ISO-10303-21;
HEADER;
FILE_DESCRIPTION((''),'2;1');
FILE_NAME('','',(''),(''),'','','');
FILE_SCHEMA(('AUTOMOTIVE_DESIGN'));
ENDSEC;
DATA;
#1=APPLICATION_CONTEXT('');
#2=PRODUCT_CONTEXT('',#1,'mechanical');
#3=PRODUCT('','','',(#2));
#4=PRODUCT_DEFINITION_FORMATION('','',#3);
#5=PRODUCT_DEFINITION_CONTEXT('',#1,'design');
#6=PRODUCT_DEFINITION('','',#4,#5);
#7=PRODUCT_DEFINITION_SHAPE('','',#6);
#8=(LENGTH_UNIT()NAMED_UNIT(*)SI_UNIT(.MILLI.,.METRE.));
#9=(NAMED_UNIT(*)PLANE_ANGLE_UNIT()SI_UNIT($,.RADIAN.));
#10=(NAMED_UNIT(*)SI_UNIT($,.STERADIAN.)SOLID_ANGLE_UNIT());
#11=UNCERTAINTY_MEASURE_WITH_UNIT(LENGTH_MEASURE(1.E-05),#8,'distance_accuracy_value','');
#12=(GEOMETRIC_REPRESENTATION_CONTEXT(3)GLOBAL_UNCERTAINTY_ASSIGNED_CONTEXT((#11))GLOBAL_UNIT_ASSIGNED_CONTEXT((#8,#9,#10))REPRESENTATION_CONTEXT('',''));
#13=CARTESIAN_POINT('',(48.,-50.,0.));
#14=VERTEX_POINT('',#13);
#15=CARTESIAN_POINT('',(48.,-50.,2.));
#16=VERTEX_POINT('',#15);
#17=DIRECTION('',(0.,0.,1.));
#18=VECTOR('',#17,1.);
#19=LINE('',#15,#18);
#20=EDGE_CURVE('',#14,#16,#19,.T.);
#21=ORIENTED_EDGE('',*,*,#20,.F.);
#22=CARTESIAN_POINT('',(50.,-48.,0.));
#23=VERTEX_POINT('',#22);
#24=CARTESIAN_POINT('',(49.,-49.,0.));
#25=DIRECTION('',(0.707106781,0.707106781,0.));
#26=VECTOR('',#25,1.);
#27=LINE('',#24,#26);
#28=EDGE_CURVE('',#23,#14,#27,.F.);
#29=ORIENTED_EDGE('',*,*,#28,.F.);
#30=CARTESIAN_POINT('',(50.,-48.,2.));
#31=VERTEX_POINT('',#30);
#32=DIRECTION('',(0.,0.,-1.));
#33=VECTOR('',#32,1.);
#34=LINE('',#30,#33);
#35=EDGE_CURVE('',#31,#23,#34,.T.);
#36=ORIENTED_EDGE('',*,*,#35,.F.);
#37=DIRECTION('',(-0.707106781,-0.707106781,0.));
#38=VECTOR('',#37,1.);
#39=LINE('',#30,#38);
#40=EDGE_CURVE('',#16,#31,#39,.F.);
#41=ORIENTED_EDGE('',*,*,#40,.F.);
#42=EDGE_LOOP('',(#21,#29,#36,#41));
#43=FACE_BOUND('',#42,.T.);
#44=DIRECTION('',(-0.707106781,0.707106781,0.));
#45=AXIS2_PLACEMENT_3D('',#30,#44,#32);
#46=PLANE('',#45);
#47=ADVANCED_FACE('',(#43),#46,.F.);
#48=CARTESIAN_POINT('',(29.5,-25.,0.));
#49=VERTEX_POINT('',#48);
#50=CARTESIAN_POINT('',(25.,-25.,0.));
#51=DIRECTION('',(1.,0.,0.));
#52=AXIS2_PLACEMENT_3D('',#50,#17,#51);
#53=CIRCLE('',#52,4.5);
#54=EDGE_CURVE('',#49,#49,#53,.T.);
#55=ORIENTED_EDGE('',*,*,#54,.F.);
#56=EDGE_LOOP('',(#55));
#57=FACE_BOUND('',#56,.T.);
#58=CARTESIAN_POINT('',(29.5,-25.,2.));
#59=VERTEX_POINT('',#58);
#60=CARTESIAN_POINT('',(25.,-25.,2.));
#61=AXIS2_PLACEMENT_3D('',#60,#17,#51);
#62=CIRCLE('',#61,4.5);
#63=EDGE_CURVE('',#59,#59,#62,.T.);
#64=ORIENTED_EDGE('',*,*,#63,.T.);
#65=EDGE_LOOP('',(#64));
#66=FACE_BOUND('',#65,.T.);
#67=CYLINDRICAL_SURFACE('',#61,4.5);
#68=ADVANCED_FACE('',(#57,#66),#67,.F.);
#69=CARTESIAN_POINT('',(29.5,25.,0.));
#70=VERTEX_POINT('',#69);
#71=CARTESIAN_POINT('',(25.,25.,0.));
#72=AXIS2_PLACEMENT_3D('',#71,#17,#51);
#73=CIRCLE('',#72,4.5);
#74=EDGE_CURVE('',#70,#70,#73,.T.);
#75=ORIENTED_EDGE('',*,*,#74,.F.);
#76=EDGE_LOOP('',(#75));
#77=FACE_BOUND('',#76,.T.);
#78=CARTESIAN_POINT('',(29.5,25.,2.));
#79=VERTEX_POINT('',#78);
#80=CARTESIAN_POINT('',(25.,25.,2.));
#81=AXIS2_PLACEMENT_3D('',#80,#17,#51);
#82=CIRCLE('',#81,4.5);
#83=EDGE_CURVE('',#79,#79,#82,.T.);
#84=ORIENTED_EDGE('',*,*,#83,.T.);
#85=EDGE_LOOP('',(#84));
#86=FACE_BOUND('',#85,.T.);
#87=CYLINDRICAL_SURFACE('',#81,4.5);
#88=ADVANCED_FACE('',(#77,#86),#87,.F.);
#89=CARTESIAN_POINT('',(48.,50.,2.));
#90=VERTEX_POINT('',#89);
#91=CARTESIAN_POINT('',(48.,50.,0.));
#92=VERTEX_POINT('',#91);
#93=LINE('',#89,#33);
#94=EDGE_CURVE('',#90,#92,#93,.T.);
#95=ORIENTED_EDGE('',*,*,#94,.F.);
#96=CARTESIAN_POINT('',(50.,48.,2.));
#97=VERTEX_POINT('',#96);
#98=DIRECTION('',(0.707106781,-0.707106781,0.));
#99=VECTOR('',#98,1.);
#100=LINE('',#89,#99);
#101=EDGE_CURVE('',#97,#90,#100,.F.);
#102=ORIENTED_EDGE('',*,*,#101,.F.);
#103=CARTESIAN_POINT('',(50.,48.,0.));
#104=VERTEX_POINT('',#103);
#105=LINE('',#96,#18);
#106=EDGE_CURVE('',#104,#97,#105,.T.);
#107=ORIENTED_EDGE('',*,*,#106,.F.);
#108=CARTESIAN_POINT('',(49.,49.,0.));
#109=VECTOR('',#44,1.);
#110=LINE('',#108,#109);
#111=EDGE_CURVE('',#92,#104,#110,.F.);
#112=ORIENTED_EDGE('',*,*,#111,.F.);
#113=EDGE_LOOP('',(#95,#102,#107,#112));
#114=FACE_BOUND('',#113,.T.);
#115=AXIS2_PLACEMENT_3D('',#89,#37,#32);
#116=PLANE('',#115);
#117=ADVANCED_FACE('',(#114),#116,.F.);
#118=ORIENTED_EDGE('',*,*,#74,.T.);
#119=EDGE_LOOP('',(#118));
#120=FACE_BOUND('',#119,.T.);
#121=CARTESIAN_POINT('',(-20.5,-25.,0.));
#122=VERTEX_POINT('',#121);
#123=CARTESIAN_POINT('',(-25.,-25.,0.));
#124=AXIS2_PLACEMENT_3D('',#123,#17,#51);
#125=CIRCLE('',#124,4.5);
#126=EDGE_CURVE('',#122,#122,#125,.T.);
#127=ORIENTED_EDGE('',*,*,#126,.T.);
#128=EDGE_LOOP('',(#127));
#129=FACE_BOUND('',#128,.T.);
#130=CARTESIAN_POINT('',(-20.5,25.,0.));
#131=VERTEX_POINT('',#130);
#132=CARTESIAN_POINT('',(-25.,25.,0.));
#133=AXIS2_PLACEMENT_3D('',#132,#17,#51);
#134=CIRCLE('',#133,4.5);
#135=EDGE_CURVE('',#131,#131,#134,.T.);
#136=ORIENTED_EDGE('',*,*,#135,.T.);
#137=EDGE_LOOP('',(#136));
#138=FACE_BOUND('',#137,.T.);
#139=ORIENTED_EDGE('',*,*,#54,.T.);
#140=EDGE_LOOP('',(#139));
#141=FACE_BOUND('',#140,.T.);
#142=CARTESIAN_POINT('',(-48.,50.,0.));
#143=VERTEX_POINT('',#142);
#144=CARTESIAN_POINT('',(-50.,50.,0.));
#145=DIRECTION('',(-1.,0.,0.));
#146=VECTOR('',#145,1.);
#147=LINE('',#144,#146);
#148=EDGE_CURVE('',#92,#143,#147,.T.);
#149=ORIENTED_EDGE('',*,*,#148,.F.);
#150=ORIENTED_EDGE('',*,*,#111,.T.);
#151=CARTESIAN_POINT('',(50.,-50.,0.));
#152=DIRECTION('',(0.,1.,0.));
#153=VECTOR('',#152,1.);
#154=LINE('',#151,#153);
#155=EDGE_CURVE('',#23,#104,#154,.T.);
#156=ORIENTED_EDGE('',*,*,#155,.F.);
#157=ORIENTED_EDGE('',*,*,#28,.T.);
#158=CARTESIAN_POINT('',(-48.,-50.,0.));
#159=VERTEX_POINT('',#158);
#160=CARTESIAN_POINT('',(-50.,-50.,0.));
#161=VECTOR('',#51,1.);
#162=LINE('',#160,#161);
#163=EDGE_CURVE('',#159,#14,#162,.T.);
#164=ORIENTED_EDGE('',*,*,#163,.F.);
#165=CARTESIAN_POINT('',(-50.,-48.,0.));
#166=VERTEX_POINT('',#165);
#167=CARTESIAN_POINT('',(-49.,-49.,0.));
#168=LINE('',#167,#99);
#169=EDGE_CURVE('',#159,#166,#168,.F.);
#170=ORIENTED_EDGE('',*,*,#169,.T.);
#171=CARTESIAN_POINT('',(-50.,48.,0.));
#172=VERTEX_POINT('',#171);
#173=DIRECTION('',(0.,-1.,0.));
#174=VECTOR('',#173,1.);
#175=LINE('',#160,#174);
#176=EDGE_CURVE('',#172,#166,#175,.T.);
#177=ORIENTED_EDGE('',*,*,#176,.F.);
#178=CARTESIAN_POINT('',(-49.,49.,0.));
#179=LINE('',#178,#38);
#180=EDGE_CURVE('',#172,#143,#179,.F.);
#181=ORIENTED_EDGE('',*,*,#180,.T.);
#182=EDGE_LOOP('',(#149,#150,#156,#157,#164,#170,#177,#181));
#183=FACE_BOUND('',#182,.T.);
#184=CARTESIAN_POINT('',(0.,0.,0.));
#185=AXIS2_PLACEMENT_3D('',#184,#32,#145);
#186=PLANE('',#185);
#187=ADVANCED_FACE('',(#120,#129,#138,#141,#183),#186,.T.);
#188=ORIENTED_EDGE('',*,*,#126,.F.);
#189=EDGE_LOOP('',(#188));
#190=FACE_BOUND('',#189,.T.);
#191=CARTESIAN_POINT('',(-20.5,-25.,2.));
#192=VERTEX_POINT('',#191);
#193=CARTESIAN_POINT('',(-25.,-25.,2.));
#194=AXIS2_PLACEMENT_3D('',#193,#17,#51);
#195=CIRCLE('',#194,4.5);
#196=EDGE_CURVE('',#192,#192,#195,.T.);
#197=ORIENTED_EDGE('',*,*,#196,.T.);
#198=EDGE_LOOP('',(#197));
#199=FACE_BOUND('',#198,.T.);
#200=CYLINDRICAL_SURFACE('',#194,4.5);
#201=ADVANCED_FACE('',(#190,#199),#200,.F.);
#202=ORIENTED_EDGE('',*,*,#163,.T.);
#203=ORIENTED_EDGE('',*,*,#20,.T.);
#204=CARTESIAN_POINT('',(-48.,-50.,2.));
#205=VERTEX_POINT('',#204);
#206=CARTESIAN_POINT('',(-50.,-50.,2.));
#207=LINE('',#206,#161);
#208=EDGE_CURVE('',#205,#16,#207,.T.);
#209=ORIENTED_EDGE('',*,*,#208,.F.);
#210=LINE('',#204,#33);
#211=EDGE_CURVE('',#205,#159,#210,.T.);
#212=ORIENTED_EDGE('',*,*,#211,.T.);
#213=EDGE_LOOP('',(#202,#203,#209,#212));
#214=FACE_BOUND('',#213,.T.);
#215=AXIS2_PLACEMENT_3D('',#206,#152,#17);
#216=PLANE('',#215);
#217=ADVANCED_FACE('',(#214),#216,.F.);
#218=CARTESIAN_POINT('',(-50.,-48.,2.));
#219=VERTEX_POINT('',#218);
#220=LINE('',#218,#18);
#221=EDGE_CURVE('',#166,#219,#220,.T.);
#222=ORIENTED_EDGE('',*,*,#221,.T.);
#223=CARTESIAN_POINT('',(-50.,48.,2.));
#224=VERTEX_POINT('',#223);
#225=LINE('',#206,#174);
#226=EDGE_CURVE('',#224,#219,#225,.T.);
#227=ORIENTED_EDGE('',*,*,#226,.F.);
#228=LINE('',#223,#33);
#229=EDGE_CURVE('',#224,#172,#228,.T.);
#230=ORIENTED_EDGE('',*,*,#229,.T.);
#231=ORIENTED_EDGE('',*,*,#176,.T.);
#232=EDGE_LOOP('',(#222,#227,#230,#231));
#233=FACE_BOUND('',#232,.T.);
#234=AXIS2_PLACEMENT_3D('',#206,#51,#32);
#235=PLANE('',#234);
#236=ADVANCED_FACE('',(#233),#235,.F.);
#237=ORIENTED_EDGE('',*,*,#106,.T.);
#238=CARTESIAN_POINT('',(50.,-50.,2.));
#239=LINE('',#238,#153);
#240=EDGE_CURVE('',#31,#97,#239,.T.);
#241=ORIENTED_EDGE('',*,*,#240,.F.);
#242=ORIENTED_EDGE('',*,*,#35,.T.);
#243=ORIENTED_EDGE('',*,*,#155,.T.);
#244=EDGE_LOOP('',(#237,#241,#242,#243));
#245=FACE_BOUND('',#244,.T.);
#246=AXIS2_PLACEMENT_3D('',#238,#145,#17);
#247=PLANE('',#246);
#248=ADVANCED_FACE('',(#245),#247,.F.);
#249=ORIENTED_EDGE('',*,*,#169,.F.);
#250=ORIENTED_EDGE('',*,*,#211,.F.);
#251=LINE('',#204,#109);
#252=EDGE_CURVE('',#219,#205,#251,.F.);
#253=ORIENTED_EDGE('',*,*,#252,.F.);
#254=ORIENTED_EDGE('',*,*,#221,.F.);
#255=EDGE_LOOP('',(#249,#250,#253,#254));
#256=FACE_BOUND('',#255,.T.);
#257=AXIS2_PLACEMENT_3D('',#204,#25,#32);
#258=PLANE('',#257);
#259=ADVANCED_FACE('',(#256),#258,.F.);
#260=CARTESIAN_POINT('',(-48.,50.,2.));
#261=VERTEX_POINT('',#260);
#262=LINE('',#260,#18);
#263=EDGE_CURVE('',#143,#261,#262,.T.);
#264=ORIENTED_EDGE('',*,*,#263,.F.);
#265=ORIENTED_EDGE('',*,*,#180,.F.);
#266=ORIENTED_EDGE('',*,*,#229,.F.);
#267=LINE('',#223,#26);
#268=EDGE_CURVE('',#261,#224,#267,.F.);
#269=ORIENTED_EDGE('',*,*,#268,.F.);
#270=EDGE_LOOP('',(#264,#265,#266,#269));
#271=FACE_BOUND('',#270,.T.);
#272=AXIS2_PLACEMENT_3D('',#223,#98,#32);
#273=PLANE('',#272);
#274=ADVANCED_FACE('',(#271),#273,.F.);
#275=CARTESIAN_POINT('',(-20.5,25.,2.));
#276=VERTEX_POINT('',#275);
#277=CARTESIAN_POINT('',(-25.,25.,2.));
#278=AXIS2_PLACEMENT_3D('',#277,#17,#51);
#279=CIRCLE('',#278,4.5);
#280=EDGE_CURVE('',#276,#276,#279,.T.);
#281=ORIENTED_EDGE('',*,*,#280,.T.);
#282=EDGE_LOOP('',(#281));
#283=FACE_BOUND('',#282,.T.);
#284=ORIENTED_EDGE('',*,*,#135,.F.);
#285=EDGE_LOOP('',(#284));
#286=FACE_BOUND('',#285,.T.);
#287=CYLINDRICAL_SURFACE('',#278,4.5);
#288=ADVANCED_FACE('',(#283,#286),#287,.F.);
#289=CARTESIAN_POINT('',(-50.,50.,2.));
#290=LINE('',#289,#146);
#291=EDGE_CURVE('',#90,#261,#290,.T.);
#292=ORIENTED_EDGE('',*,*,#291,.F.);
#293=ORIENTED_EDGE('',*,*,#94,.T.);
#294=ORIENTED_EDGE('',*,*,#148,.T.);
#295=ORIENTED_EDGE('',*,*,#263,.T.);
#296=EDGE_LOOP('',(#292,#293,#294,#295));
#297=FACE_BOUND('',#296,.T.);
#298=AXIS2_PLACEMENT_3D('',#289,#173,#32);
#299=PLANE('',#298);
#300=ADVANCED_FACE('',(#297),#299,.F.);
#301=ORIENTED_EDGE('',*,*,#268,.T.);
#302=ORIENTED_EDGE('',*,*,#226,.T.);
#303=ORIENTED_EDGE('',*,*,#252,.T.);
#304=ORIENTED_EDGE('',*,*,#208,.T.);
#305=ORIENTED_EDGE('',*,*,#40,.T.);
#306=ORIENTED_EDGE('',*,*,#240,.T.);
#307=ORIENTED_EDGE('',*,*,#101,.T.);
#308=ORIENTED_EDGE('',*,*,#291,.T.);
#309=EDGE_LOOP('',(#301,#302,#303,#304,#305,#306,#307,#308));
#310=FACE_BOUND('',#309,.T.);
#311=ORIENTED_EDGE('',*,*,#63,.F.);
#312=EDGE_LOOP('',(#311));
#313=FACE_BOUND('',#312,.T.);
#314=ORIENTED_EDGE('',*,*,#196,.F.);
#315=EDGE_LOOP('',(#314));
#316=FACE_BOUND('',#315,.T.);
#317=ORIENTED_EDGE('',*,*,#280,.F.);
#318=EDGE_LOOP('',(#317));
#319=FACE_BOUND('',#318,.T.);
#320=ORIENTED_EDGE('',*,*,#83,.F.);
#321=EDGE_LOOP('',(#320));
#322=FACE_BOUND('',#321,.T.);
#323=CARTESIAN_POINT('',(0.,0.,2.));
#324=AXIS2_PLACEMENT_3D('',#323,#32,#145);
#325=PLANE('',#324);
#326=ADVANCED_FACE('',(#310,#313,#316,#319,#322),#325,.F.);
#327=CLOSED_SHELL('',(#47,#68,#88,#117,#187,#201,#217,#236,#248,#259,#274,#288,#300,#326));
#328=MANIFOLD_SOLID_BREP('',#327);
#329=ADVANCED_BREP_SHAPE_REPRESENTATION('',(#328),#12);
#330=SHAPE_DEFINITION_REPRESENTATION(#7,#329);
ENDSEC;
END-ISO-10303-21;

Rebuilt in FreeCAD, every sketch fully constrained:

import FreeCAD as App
import Part
import Sketcher

V = App.Vector


def edges_at(feature, points):
    """Names of the edges that pass closest to the given points."""
    edges = feature.Shape.Edges
    near = lambda p: min(range(len(edges)), key=lambda i: edges[i].distToShape(Part.Vertex(*p))[0])
    return sorted({f"Edge{near(p) + 1}" for p in points})


def add_polygon(sketch, points):
    """Adds a closed chain of lines whose ends are joined by coincident constraints."""
    first, n = sketch.GeometryCount, len(points)
    for a, b in zip(points, points[1:] + points[:1]):
        sketch.addGeometry(Part.LineSegment(App.Vector(*a, 0), App.Vector(*b, 0)), False)
    for i in range(n):
        sketch.addConstraint(Sketcher.Constraint("Coincident", first + i, 2, first + (i + 1) % n, 1))

doc = App.newDocument("Part")
body = doc.addObject("PartDesign::Body", "Body")

# Sketch on XY plane
sketch1 = body.newObject("Sketcher::SketchObject", "Sketch")
sketch1.AttachmentSupport = (doc.getObject("XY_Plane"), [""])
sketch1.MapMode = "FlatFace"
add_polygon(sketch1, [(-50, 50), (-50, -50), (50, -50), (50, 50)])  # lines 0-3
sketch1.addConstraint(Sketcher.Constraint("Vertical", 0))
sketch1.addConstraint(Sketcher.Constraint("Horizontal", 1))
sketch1.addConstraint(Sketcher.Constraint("Vertical", 2))
sketch1.addConstraint(Sketcher.Constraint("Horizontal", 3))
sketch1.addConstraint(Sketcher.Constraint("Symmetric", 0, 2, 2, 2, -1, 1))
sketch1.addConstraint(Sketcher.Constraint("Equal", 3, 0))
sketch1.addConstraint(Sketcher.Constraint("DistanceX", 1, 1, 1, 2, 100.0))
pad1 = body.newObject("PartDesign::Pad", "Pad")
pad1.Profile = sketch1
pad1.Length = 2
doc.recompute()

chamfer = body.newObject("PartDesign::Chamfer", "Chamfer")
chamfer.Base = (pad1, edges_at(pad1, [
    (50, -50, 1),
    (-50, -50, 1),
    (-50, 50, 1),
    (50, 50, 1),
]))
chamfer.Size = 2

# Sketch on XY plane
sketch2 = body.newObject("Sketcher::SketchObject", "Sketch001")
sketch2.AttachmentSupport = (doc.getObject("XY_Plane"), [""])
sketch2.MapMode = "FlatFace"
sketch2.AttachmentOffset = App.Placement(V(0, 0, 2), App.Rotation())
sketch2.addGeometry(Part.Circle(V(-25, 25, 0), V(0, 0, 1), 4.5), False)
sketch2.addGeometry(Part.Circle(V(25, 25, 0), V(0, 0, 1), 4.5), False)
sketch2.addGeometry(Part.Circle(V(-25, -25, 0), V(0, 0, 1), 4.5), False)
sketch2.addGeometry(Part.Circle(V(25, -25, 0), V(0, 0, 1), 4.5), False)
sketch2.addConstraint(Sketcher.Constraint("Equal", 0, 1))
sketch2.addConstraint(Sketcher.Constraint("Equal", 1, 2))
sketch2.addConstraint(Sketcher.Constraint("Equal", 2, 3))
sketch2.addConstraint(Sketcher.Constraint("Symmetric", 1, 3, 2, 3, -1, 1))
sketch2.addConstraint(Sketcher.Constraint("Symmetric", 0, 3, 3, 3, -1, 1))
sketch2.addConstraint(Sketcher.Constraint("Symmetric", 0, 3, 1, 3, -2))
sketch2.addConstraint(Sketcher.Constraint("Diameter", 0, 9.0))
sketch2.addConstraint(Sketcher.Constraint("DistanceX", 0, 3, -1, 1, 25.0))
sketch2.addConstraint(Sketcher.Constraint("DistanceY", -1, 1, 0, 3, 25.0))
doc.recompute()
hole = body.newObject("PartDesign::Hole", "Hole")
hole.Profile = sketch2
hole.ThreadType = "None"
hole.Diameter = 9
hole.DepthType = "ThroughAll"

doc.recompute()
